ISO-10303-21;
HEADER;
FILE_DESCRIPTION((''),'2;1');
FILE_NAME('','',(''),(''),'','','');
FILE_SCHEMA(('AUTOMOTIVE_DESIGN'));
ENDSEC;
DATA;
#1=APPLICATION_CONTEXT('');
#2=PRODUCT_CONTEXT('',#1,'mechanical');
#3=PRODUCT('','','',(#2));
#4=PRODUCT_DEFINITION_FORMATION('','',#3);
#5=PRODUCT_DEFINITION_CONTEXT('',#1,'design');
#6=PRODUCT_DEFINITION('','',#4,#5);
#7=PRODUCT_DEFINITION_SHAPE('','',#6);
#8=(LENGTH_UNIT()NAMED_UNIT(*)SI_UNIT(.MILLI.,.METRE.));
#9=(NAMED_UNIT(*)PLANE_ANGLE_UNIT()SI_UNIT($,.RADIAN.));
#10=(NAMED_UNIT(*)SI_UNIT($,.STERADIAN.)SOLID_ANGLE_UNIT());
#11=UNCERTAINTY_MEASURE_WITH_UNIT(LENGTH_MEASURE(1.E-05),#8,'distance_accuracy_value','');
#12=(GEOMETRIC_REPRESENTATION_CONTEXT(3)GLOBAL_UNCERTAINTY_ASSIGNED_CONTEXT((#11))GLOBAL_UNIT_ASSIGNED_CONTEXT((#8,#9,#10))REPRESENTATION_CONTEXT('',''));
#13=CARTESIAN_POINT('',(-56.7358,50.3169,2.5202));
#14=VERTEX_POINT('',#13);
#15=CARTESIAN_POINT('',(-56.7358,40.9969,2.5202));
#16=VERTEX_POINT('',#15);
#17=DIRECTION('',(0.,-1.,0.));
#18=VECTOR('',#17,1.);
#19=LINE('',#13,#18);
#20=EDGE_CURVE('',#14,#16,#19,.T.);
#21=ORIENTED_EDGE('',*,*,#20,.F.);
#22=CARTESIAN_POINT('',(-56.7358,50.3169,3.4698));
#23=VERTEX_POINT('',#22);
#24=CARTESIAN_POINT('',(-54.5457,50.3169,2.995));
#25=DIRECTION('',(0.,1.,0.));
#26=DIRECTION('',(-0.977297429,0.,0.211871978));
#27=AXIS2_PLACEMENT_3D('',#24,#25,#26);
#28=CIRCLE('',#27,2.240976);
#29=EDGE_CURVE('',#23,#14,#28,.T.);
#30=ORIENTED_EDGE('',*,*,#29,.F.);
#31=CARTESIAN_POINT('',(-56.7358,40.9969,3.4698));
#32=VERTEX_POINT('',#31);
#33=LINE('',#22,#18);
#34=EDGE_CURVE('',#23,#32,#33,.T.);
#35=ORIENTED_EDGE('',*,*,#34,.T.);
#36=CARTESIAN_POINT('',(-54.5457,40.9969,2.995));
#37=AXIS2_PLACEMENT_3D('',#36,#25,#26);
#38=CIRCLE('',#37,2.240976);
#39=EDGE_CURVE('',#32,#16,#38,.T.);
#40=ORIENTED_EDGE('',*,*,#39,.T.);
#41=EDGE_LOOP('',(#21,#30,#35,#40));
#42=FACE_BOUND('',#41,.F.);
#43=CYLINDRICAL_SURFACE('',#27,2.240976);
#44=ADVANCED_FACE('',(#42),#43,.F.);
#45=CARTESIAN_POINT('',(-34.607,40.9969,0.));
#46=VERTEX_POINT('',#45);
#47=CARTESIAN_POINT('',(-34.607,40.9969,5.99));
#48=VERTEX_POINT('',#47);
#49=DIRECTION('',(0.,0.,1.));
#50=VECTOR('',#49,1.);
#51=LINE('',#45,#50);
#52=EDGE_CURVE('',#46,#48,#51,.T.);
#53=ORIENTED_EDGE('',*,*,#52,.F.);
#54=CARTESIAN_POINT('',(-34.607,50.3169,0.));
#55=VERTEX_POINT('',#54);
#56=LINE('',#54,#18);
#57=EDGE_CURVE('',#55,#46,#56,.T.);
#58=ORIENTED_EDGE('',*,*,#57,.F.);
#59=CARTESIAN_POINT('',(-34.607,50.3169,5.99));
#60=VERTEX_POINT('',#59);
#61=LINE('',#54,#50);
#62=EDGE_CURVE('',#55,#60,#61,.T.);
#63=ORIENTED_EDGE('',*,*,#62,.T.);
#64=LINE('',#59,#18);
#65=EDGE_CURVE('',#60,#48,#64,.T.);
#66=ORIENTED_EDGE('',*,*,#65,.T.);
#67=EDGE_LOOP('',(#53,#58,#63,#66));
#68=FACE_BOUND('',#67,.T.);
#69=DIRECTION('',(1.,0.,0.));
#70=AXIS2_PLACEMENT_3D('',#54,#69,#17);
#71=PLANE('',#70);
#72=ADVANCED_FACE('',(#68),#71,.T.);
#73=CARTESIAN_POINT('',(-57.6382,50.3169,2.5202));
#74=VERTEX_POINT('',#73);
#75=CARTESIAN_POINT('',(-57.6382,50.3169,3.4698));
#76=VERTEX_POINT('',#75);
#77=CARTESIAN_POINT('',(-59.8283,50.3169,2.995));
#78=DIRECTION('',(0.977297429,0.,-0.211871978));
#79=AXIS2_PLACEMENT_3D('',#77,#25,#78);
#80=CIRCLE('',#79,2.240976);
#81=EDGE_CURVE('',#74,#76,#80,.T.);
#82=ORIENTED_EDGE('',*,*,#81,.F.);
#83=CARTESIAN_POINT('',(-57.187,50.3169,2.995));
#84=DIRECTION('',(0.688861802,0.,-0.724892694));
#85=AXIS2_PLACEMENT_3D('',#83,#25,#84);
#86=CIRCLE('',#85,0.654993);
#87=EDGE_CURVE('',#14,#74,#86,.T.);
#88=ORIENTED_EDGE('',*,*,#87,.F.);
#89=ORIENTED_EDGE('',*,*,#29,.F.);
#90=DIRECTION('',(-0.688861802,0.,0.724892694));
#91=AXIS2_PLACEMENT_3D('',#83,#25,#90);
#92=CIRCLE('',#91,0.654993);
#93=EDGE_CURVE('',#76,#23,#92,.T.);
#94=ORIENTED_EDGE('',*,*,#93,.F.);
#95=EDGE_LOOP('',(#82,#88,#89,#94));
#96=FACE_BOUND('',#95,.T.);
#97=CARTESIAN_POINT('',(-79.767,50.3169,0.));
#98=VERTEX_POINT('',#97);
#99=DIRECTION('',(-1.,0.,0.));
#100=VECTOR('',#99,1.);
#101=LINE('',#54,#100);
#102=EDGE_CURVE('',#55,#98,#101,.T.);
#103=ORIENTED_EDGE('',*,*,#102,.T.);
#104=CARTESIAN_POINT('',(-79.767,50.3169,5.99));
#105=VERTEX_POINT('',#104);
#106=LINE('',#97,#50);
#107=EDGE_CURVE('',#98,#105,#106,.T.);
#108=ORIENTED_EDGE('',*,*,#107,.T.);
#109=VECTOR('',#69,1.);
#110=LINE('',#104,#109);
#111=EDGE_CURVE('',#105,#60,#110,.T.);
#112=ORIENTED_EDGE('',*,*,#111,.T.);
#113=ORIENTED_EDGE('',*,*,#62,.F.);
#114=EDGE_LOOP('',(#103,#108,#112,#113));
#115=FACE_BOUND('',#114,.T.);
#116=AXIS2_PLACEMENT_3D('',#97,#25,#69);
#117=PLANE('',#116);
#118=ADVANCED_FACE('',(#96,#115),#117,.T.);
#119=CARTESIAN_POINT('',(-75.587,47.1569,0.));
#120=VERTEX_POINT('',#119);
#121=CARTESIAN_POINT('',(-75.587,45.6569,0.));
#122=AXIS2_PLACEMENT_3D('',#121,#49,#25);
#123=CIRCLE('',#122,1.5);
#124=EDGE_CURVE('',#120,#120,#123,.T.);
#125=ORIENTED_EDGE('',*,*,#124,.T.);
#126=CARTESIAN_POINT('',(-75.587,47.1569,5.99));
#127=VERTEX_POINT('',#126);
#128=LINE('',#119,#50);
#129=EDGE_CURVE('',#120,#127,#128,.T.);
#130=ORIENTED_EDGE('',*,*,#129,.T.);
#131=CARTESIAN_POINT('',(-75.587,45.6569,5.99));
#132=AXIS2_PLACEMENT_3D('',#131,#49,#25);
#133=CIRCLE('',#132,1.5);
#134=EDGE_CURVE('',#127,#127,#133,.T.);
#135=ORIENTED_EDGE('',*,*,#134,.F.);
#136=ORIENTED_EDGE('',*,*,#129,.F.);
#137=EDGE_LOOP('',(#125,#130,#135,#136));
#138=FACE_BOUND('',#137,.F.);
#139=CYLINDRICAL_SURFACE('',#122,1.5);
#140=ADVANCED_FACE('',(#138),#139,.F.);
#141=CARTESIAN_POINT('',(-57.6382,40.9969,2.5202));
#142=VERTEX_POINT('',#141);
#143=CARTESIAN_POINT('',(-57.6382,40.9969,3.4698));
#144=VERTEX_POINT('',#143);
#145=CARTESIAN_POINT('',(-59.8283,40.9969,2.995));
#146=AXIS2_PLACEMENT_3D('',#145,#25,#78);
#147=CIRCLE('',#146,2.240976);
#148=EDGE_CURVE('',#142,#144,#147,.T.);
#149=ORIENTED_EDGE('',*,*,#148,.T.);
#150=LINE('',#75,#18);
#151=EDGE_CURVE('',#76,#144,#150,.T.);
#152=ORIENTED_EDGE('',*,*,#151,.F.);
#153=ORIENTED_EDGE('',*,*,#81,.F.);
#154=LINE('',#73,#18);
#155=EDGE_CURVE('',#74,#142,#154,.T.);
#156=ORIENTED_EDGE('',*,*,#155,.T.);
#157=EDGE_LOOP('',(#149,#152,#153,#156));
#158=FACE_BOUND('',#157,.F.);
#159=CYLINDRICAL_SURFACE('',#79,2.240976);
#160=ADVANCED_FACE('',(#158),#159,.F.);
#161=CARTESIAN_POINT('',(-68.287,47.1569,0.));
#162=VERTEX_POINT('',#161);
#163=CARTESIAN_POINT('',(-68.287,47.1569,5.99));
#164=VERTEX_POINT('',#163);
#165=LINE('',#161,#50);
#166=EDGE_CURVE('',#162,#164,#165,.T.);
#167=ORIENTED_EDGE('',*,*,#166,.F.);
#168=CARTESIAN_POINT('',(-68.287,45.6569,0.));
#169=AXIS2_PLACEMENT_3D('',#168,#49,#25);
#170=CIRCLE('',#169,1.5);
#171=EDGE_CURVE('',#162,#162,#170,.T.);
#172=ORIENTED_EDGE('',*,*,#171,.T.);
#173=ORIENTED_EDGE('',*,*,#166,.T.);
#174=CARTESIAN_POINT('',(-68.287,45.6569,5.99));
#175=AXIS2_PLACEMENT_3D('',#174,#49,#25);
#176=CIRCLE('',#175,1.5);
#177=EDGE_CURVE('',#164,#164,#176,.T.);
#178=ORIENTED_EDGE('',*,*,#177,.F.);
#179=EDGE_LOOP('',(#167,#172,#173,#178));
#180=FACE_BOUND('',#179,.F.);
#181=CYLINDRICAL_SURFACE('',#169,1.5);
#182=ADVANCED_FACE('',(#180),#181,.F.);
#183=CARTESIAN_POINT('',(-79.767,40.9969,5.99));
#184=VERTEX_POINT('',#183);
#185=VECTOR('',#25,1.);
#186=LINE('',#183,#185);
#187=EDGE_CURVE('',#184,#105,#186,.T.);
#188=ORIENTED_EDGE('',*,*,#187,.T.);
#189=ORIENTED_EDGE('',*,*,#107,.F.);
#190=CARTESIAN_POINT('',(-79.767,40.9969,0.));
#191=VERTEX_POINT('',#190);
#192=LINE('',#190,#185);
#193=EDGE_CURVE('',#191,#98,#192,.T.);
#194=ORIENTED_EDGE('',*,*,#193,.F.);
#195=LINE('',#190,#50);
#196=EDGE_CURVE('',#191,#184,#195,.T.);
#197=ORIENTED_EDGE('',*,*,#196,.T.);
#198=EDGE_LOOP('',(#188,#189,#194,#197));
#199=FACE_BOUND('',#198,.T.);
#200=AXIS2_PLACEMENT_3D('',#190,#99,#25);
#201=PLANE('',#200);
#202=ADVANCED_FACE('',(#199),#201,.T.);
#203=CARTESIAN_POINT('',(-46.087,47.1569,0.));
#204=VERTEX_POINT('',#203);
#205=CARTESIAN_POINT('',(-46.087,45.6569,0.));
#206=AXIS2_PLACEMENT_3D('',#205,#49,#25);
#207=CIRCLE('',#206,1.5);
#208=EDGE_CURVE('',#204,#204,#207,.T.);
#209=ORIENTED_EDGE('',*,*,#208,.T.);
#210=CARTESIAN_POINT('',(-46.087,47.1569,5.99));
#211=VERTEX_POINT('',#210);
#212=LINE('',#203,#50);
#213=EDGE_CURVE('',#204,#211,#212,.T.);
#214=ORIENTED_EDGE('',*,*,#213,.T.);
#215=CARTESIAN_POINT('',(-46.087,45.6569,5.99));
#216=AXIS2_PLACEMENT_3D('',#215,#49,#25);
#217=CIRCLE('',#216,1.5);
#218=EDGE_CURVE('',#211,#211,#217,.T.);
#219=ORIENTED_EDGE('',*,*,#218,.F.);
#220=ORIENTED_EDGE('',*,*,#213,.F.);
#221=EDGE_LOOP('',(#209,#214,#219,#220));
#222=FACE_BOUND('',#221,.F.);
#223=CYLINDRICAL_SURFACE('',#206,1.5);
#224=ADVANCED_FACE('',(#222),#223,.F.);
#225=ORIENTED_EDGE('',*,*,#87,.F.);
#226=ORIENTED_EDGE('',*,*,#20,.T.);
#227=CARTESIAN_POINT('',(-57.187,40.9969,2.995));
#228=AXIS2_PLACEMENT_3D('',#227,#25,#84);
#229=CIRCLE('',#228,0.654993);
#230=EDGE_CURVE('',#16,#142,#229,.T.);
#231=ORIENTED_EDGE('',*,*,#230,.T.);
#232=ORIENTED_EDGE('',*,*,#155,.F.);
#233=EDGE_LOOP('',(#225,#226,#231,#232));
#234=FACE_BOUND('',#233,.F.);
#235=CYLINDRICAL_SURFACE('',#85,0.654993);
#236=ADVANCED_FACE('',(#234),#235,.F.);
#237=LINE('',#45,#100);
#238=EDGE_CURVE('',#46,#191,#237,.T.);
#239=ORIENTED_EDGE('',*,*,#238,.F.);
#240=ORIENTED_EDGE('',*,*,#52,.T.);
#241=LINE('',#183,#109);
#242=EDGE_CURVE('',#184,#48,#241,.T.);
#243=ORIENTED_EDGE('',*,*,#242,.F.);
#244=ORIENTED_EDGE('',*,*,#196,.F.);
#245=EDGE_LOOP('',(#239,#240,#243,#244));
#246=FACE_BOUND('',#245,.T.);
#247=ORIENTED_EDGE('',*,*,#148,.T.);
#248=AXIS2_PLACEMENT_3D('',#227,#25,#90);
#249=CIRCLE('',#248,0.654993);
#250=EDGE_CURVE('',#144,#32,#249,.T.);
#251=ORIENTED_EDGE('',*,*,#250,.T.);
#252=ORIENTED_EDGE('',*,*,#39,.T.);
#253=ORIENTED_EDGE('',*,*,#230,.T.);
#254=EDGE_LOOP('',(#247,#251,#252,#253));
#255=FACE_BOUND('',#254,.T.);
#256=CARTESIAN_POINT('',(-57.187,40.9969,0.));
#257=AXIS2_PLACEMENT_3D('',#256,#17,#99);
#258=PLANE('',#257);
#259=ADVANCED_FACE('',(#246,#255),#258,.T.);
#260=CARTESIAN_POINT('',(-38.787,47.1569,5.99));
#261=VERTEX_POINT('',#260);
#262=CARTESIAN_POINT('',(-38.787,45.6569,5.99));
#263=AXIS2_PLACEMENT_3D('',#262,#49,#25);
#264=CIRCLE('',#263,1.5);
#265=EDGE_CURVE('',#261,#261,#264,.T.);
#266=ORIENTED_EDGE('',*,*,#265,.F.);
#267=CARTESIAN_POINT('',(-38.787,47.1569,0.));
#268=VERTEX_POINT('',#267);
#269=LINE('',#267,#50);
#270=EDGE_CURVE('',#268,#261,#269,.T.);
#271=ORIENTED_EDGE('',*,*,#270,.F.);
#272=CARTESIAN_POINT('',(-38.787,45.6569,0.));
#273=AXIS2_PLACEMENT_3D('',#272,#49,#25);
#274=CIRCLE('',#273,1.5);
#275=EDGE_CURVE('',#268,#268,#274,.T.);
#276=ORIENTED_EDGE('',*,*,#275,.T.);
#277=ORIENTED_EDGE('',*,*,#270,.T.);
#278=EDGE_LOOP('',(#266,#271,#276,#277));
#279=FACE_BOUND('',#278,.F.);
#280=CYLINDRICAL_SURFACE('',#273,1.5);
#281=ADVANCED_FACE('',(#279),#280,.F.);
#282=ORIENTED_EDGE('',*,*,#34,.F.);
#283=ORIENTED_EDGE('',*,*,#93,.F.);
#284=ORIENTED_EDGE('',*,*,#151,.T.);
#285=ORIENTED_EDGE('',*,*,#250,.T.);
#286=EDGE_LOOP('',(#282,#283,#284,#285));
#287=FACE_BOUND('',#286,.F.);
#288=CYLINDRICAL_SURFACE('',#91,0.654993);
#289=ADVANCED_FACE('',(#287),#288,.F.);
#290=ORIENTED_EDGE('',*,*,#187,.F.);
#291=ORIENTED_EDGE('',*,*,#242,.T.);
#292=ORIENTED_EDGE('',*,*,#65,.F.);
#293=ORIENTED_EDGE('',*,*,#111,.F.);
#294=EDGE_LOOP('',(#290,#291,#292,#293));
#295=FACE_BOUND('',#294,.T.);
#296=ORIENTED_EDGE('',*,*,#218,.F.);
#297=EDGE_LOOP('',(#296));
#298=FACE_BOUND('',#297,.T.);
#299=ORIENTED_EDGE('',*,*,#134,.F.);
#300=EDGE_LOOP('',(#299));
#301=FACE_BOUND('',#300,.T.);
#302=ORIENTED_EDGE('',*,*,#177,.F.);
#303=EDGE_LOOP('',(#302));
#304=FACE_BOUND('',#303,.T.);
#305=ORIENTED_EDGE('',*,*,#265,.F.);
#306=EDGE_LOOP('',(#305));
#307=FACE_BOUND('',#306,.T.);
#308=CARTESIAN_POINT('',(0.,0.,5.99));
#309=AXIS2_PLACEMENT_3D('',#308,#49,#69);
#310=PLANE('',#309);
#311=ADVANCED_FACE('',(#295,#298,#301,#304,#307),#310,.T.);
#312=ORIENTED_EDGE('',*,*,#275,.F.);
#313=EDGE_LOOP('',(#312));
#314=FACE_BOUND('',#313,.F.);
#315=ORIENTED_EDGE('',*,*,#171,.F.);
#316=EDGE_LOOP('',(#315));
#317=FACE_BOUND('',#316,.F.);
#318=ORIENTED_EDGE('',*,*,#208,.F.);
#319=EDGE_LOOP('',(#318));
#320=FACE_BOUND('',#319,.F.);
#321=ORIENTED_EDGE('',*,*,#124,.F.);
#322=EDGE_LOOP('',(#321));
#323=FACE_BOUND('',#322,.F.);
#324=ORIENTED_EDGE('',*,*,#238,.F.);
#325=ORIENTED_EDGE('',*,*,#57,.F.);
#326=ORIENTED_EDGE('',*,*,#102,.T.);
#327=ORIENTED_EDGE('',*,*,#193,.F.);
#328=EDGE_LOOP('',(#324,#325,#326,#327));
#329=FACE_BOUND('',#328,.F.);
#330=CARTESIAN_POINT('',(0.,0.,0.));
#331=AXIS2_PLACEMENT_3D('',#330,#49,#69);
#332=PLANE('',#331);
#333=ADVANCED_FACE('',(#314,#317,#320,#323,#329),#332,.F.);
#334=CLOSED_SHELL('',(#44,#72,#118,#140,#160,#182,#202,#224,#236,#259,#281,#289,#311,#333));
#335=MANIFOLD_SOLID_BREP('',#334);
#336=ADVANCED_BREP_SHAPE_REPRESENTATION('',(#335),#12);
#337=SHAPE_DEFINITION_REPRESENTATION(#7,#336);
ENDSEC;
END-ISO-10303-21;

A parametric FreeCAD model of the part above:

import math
import FreeCAD as App
import Part
import Sketcher


def add_polygon(sketch, points):
    """Adds a closed chain of lines whose ends are joined by coincident constraints."""
    first, n = sketch.GeometryCount, len(points)
    for a, b in zip(points, points[1:] + points[:1]):
        sketch.addGeometry(Part.LineSegment(App.Vector(*a, 0), App.Vector(*b, 0)), False)
    for i in range(n):
        sketch.addConstraint(Sketcher.Constraint("Coincident", first + i, 2, first + (i + 1) % n, 1))

doc = App.newDocument("Part")
body = doc.addObject("PartDesign::Body", "Body")

# Sketch on XY plane
sketch1 = doc.addObject("Sketcher::SketchObject", "Sketch")
body.addObject(sketch1)
sketch1.AttachmentSupport = (doc.XY_Plane, [""])
sketch1.MapMode = "FlatFace"
add_polygon(sketch1, [(-79.767, 50.3169), (-79.767, 40.9969), (-34.607, 40.9969), (-34.607, 50.3169)])  # lines 0-3
sketch1.addConstraint([
    Sketcher.Constraint("Vertical", 0),
    Sketcher.Constraint("Horizontal", 1),
    Sketcher.Constraint("Vertical", 2),
    Sketcher.Constraint("Horizontal", 3),
    Sketcher.Constraint("DistanceX", 1, 1, 1, 2, 45.16),
    Sketcher.Constraint("DistanceY", 0, 2, 0, 1, 9.32),
    Sketcher.Constraint("DistanceX", 0, 2, -1, 1, 79.767),
    Sketcher.Constraint("DistanceY", -1, 1, 0, 2, 40.997),
])
pad1 = doc.addObject("PartDesign::Pad", "Pad")
body.addObject(pad1)
pad1.Profile = sketch1
pad1.Length = 5.99

# Sketch on XY plane
sketch2 = doc.addObject("Sketcher::SketchObject", "Sketch001")
body.addObject(sketch2)
sketch2.AttachmentSupport = (doc.XY_Plane, [""])
sketch2.MapMode = "FlatFace"
sketch2.addGeometry([
    Part.Circle(App.Vector(-38.787, 45.6569, 0), App.Vector(0, 0, 1), 1.5),
    Part.Circle(App.Vector(-46.087, 45.6569, 0), App.Vector(0, 0, 1), 1.5),
    Part.Circle(App.Vector(-68.287, 45.6569, 0), App.Vector(0, 0, 1), 1.5),
    Part.Circle(App.Vector(-75.587, 45.6569, 0), App.Vector(0, 0, 1), 1.5),
], False)
sketch2.addConstraint([
    Sketcher.Constraint("Equal", 0, 1),
    Sketcher.Constraint("Equal", 1, 2),
    Sketcher.Constraint("Equal", 2, 3),
    Sketcher.Constraint("Horizontal", 0, 3, 1, 3),
    Sketcher.Constraint("Horizontal", 1, 3, 2, 3),
    Sketcher.Constraint("Horizontal", 2, 3, 3, 3),
    Sketcher.Constraint("Diameter", 0, 3.0),
    Sketcher.Constraint("DistanceX", 1, 3, 0, 3, 7.3),
    Sketcher.Constraint("DistanceX", 2, 3, 1, 3, 22.2),
    Sketcher.Constraint("DistanceX", 3, 3, 2, 3, 7.3),
    Sketcher.Constraint("DistanceX", 0, 3, -1, 1, 38.787),
    Sketcher.Constraint("DistanceY", -1, 1, 0, 3, 45.657),
])
doc.recompute()
hole = doc.addObject("PartDesign::Hole", "Hole")
body.addObject(hole)
hole.Profile = sketch2
hole.ThreadType = "None"
hole.Diameter = 3
hole.DepthType = "ThroughAll"
hole.Reversed = True

# Sketch on XZ plane
sketch3 = doc.addObject("Sketcher::SketchObject", "Sketch002")
body.addObject(sketch3)
sketch3.AttachmentSupport = (doc.XZ_Plane, [""])
sketch3.MapMode = "FlatFace"
sketch3.AttachmentOffset = App.Placement(App.Vector(0, 0, -50.3169), App.Rotation())
sketch3.addGeometry([
    Part.ArcOfCircle(Part.Circle(App.Vector(-57.187, 2.995, 0), App.Vector(0, 0, 1), 0.654993), math.radians(46.459922), math.radians(133.540078)),
    Part.ArcOfCircle(Part.Circle(App.Vector(-54.5457, 2.995, 0), App.Vector(0, 0, 1), 2.240976), math.radians(-167.767922), math.radians(167.767922)),
    Part.ArcOfCircle(Part.Circle(App.Vector(-57.187, 2.995, 0), App.Vector(0, 0, 1), 0.654993), math.radians(-133.540078), math.radians(-46.459922)),
    Part.ArcOfCircle(Part.Circle(App.Vector(-59.8283, 2.995, 0), App.Vector(0, 0, 1), 2.240976), math.radians(12.232078), math.radians(347.767922)),
], False)
sketch3.addConstraint([
    Sketcher.Constraint("Coincident", 0, 1, 1, 2),
    Sketcher.Constraint("Coincident", 1, 1, 2, 2),
    Sketcher.Constraint("Coincident", 2, 1, 3, 2),
    Sketcher.Constraint("Coincident", 3, 1, 0, 2),
    Sketcher.Constraint("Coincident", 2, 3, 0, 3),
    Sketcher.Constraint("Equal", 0, 2),
    Sketcher.Constraint("Equal", 1, 3),
    Sketcher.Constraint("Horizontal", 0, 3, 1, 3),
    Sketcher.Constraint("Horizontal", 2, 3, 3, 3),
    Sketcher.Constraint("Horizontal", 1, 1, 2, 1),
    Sketcher.Constraint("Radius", 0, 0.655),
    Sketcher.Constraint("Radius", 1, 2.241),
    Sketcher.Constraint("DistanceX", 0, 1, 1, 3, 2.19),
    Sketcher.Constraint("DistanceX", 0, 3, -1, 1, 57.187),
    Sketcher.Constraint("DistanceY", -1, 1, 0, 3, 2.995),
])
pocket1 = doc.addObject("PartDesign::Pocket", "Pocket")
body.addObject(pocket1)
pocket1.Profile = sketch3
pocket1.Type = "ThroughAll"
pocket1.Reversed = True

doc.recompute()
